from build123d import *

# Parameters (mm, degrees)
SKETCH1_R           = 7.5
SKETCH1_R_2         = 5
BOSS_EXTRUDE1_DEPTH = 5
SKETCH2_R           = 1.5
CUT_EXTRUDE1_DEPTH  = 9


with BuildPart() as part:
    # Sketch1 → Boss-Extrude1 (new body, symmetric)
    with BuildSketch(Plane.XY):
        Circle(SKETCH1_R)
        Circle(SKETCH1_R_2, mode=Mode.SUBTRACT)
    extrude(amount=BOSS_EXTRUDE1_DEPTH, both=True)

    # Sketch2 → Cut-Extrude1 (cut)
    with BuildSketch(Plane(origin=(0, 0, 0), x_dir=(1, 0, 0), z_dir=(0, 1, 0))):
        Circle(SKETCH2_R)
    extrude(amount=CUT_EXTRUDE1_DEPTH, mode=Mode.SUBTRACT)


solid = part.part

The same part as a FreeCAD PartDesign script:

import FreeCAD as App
import Part
import Sketcher
from FreeCAD import Vector
Q = App.Units.Quantity

doc = App.newDocument("Part")
params = doc.addObject("Spreadsheet::Sheet", "Params")
for row, (alias, value) in enumerate([
    ("sketch1_diameter", "15 mm"),
    ("sketch1_diameter2", "10 mm"),
    ("pad1_length", "10 mm"),
    ("sketch2_diameter", "3 mm"),
    ("pocket1_length", "9 mm"),
], start=1):
    params.set(f"A{row}", alias)
    params.set(f"B{row}", "=" + value)
    params.setAlias(f"B{row}", alias)

body = doc.addObject("PartDesign::Body", "Body")

# Sketch on XY plane
sketch1 = doc.addObject("Sketcher::SketchObject", "Sketch")
body.addObject(sketch1)
sketch1.AttachmentSupport = (doc.XY_Plane, [""])
sketch1.MapMode = "FlatFace"
sketch1.addGeometry([
    Part.Circle(Vector(0, 0, 0), Vector(0, 0, 1), 8),
    Part.Circle(Vector(0, 0, 0), Vector(0, 0, 1), 5),
], False)
sketch1.addConstraint([
    Sketcher.Constraint("Coincident", 0, 3, -1, 1),
    Sketcher.Constraint("Coincident", 1, 3, -1, 1),
    Sketcher.Constraint("Diameter", 0, Q("15 mm")),
    Sketcher.Constraint("Diameter", 1, Q("10 mm")),
])
sketch1.setExpression("Constraints[2]", "Params.sketch1_diameter")
sketch1.setExpression("Constraints[3]", "Params.sketch1_diameter2")
pad1 = doc.addObject("PartDesign::Pad", "Pad")
body.addObject(pad1)
pad1.Profile = sketch1
pad1.setExpression("Length", "Params.pad1_length")
pad1.Midplane = True

# Sketch on XZ plane
sketch2 = doc.addObject("Sketcher::SketchObject", "Sketch001")
body.addObject(sketch2)
sketch2.AttachmentSupport = (doc.XZ_Plane, [""])
sketch2.MapMode = "FlatFace"
sketch2.addGeometry(Part.Circle(Vector(0, 0, 0), Vector(0, 0, 1), 1.5), False)
sketch2.addConstraint([
    Sketcher.Constraint("Coincident", 0, 3, -1, 1),
    Sketcher.Constraint("Diameter", 0, Q("3 mm")),
])
sketch2.setExpression("Constraints[1]", "Params.sketch2_diameter")
pocket1 = doc.addObject("PartDesign::Pocket", "Pocket")
body.addObject(pocket1)
pocket1.Profile = sketch2
pocket1.setExpression("Length", "Params.pocket1_length")

doc.recompute()
